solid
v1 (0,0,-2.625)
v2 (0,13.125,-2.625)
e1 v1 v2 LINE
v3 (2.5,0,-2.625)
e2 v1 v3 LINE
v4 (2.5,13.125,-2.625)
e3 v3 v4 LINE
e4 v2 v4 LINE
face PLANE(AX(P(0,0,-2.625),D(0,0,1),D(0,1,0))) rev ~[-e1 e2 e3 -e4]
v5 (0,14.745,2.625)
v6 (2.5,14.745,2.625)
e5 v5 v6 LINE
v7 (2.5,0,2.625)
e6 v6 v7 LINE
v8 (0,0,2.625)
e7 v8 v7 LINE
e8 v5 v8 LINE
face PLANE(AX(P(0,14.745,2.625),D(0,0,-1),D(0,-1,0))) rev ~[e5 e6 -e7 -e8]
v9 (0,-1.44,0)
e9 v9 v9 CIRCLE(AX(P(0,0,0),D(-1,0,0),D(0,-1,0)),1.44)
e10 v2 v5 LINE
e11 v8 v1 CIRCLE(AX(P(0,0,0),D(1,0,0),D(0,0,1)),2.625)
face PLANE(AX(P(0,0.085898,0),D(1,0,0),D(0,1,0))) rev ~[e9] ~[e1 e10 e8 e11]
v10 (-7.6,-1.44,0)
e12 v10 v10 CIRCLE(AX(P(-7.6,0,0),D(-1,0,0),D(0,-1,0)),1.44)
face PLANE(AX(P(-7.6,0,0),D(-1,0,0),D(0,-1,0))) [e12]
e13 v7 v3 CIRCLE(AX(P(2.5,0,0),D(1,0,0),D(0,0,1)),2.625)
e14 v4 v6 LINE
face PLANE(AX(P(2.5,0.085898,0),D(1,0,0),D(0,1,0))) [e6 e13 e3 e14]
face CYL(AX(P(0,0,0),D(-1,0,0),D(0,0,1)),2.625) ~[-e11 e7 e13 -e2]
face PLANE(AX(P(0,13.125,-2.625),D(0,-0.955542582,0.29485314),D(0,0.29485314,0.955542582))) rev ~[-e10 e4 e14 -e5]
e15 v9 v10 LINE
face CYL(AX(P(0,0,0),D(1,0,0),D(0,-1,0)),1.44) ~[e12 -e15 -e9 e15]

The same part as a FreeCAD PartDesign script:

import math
import FreeCAD as App
import Part
import Sketcher
from FreeCAD import Vector

doc = App.newDocument("Part")
params = doc.addObject("Spreadsheet::Sheet", "Params")
for row, (alias, value) in enumerate([
    ("pad1_length", "2.5 mm"),
    ("sketch2_diameter", "2.88 mm"),
    ("pad2_length", "7.6 mm"),
], start=1):
    params.set(f"A{row}", alias)
    params.set(f"B{row}", "=" + value)
    params.setAlias(f"B{row}", alias)

body = doc.addObject("PartDesign::Body", "Body")

# Sketch on YZ plane
sketch1 = doc.addObject("Sketcher::SketchObject", "Sketch")
body.addObject(sketch1)
sketch1.AttachmentSupport = (doc.YZ_Plane, [""])
sketch1.MapMode = "FlatFace"
sketch1.addGeometry([
    Part.ArcOfCircle(Part.Circle(Vector(0, 0, 0), Vector(0, 0, 1), 2.625), math.radians(90), math.radians(270)),
    Part.LineSegment(Vector(0, -2.625, 0), Vector(13.125, -2.625, 0)),
    Part.LineSegment(Vector(13.125, -2.625, 0), Vector(14.745, 2.625, 0)),
    Part.LineSegment(Vector(14.745, 2.625, 0), Vector(0, 2.625, 0)),
], False)
sketch1.addConstraint([
    Sketcher.Constraint("Tangent", 0, 2, 1, 1),
    Sketcher.Constraint("Coincident", 1, 2, 2, 1),
    Sketcher.Constraint("Coincident", 2, 2, 3, 1),
    Sketcher.Constraint("Tangent", 3, 2, 0, 1),
    Sketcher.Constraint("Horizontal", 1),
    Sketcher.Constraint("Horizontal", 3),
    Sketcher.Constraint("Coincident", 0, 3, -1, 1),
    Sketcher.Constraint("Radius", 0, 2.625),
    Sketcher.Constraint("DistanceX", 1, 1, 1, 2, 13.125),
    Sketcher.Constraint("DistanceX", 3, 2, 3, 1, 14.745),
])
pad1 = doc.addObject("PartDesign::Pad", "Pad")
body.addObject(pad1)
pad1.Profile = sketch1
pad1.setExpression("Length", "Params.pad1_length")

# Sketch on YZ plane
sketch2 = doc.addObject("Sketcher::SketchObject", "Sketch001")
body.addObject(sketch2)
sketch2.AttachmentSupport = (doc.YZ_Plane, [""])
sketch2.MapMode = "FlatFace"
sketch2.addGeometry(Part.Circle(Vector(0, 0, 0), Vector(0, 0, 1), 1.44), False)
sketch2.addConstraint([
    Sketcher.Constraint("Coincident", 0, 3, -1, 1),
    Sketcher.Constraint("Diameter", 0, 2.88),
])
sketch2.setExpression("Constraints[1]", "Params.sketch2_diameter")
pad2 = doc.addObject("PartDesign::Pad", "Pad001")
body.addObject(pad2)
pad2.Profile = sketch2
pad2.setExpression("Length", "Params.pad2_length")
pad2.Reversed = True

doc.recompute()
